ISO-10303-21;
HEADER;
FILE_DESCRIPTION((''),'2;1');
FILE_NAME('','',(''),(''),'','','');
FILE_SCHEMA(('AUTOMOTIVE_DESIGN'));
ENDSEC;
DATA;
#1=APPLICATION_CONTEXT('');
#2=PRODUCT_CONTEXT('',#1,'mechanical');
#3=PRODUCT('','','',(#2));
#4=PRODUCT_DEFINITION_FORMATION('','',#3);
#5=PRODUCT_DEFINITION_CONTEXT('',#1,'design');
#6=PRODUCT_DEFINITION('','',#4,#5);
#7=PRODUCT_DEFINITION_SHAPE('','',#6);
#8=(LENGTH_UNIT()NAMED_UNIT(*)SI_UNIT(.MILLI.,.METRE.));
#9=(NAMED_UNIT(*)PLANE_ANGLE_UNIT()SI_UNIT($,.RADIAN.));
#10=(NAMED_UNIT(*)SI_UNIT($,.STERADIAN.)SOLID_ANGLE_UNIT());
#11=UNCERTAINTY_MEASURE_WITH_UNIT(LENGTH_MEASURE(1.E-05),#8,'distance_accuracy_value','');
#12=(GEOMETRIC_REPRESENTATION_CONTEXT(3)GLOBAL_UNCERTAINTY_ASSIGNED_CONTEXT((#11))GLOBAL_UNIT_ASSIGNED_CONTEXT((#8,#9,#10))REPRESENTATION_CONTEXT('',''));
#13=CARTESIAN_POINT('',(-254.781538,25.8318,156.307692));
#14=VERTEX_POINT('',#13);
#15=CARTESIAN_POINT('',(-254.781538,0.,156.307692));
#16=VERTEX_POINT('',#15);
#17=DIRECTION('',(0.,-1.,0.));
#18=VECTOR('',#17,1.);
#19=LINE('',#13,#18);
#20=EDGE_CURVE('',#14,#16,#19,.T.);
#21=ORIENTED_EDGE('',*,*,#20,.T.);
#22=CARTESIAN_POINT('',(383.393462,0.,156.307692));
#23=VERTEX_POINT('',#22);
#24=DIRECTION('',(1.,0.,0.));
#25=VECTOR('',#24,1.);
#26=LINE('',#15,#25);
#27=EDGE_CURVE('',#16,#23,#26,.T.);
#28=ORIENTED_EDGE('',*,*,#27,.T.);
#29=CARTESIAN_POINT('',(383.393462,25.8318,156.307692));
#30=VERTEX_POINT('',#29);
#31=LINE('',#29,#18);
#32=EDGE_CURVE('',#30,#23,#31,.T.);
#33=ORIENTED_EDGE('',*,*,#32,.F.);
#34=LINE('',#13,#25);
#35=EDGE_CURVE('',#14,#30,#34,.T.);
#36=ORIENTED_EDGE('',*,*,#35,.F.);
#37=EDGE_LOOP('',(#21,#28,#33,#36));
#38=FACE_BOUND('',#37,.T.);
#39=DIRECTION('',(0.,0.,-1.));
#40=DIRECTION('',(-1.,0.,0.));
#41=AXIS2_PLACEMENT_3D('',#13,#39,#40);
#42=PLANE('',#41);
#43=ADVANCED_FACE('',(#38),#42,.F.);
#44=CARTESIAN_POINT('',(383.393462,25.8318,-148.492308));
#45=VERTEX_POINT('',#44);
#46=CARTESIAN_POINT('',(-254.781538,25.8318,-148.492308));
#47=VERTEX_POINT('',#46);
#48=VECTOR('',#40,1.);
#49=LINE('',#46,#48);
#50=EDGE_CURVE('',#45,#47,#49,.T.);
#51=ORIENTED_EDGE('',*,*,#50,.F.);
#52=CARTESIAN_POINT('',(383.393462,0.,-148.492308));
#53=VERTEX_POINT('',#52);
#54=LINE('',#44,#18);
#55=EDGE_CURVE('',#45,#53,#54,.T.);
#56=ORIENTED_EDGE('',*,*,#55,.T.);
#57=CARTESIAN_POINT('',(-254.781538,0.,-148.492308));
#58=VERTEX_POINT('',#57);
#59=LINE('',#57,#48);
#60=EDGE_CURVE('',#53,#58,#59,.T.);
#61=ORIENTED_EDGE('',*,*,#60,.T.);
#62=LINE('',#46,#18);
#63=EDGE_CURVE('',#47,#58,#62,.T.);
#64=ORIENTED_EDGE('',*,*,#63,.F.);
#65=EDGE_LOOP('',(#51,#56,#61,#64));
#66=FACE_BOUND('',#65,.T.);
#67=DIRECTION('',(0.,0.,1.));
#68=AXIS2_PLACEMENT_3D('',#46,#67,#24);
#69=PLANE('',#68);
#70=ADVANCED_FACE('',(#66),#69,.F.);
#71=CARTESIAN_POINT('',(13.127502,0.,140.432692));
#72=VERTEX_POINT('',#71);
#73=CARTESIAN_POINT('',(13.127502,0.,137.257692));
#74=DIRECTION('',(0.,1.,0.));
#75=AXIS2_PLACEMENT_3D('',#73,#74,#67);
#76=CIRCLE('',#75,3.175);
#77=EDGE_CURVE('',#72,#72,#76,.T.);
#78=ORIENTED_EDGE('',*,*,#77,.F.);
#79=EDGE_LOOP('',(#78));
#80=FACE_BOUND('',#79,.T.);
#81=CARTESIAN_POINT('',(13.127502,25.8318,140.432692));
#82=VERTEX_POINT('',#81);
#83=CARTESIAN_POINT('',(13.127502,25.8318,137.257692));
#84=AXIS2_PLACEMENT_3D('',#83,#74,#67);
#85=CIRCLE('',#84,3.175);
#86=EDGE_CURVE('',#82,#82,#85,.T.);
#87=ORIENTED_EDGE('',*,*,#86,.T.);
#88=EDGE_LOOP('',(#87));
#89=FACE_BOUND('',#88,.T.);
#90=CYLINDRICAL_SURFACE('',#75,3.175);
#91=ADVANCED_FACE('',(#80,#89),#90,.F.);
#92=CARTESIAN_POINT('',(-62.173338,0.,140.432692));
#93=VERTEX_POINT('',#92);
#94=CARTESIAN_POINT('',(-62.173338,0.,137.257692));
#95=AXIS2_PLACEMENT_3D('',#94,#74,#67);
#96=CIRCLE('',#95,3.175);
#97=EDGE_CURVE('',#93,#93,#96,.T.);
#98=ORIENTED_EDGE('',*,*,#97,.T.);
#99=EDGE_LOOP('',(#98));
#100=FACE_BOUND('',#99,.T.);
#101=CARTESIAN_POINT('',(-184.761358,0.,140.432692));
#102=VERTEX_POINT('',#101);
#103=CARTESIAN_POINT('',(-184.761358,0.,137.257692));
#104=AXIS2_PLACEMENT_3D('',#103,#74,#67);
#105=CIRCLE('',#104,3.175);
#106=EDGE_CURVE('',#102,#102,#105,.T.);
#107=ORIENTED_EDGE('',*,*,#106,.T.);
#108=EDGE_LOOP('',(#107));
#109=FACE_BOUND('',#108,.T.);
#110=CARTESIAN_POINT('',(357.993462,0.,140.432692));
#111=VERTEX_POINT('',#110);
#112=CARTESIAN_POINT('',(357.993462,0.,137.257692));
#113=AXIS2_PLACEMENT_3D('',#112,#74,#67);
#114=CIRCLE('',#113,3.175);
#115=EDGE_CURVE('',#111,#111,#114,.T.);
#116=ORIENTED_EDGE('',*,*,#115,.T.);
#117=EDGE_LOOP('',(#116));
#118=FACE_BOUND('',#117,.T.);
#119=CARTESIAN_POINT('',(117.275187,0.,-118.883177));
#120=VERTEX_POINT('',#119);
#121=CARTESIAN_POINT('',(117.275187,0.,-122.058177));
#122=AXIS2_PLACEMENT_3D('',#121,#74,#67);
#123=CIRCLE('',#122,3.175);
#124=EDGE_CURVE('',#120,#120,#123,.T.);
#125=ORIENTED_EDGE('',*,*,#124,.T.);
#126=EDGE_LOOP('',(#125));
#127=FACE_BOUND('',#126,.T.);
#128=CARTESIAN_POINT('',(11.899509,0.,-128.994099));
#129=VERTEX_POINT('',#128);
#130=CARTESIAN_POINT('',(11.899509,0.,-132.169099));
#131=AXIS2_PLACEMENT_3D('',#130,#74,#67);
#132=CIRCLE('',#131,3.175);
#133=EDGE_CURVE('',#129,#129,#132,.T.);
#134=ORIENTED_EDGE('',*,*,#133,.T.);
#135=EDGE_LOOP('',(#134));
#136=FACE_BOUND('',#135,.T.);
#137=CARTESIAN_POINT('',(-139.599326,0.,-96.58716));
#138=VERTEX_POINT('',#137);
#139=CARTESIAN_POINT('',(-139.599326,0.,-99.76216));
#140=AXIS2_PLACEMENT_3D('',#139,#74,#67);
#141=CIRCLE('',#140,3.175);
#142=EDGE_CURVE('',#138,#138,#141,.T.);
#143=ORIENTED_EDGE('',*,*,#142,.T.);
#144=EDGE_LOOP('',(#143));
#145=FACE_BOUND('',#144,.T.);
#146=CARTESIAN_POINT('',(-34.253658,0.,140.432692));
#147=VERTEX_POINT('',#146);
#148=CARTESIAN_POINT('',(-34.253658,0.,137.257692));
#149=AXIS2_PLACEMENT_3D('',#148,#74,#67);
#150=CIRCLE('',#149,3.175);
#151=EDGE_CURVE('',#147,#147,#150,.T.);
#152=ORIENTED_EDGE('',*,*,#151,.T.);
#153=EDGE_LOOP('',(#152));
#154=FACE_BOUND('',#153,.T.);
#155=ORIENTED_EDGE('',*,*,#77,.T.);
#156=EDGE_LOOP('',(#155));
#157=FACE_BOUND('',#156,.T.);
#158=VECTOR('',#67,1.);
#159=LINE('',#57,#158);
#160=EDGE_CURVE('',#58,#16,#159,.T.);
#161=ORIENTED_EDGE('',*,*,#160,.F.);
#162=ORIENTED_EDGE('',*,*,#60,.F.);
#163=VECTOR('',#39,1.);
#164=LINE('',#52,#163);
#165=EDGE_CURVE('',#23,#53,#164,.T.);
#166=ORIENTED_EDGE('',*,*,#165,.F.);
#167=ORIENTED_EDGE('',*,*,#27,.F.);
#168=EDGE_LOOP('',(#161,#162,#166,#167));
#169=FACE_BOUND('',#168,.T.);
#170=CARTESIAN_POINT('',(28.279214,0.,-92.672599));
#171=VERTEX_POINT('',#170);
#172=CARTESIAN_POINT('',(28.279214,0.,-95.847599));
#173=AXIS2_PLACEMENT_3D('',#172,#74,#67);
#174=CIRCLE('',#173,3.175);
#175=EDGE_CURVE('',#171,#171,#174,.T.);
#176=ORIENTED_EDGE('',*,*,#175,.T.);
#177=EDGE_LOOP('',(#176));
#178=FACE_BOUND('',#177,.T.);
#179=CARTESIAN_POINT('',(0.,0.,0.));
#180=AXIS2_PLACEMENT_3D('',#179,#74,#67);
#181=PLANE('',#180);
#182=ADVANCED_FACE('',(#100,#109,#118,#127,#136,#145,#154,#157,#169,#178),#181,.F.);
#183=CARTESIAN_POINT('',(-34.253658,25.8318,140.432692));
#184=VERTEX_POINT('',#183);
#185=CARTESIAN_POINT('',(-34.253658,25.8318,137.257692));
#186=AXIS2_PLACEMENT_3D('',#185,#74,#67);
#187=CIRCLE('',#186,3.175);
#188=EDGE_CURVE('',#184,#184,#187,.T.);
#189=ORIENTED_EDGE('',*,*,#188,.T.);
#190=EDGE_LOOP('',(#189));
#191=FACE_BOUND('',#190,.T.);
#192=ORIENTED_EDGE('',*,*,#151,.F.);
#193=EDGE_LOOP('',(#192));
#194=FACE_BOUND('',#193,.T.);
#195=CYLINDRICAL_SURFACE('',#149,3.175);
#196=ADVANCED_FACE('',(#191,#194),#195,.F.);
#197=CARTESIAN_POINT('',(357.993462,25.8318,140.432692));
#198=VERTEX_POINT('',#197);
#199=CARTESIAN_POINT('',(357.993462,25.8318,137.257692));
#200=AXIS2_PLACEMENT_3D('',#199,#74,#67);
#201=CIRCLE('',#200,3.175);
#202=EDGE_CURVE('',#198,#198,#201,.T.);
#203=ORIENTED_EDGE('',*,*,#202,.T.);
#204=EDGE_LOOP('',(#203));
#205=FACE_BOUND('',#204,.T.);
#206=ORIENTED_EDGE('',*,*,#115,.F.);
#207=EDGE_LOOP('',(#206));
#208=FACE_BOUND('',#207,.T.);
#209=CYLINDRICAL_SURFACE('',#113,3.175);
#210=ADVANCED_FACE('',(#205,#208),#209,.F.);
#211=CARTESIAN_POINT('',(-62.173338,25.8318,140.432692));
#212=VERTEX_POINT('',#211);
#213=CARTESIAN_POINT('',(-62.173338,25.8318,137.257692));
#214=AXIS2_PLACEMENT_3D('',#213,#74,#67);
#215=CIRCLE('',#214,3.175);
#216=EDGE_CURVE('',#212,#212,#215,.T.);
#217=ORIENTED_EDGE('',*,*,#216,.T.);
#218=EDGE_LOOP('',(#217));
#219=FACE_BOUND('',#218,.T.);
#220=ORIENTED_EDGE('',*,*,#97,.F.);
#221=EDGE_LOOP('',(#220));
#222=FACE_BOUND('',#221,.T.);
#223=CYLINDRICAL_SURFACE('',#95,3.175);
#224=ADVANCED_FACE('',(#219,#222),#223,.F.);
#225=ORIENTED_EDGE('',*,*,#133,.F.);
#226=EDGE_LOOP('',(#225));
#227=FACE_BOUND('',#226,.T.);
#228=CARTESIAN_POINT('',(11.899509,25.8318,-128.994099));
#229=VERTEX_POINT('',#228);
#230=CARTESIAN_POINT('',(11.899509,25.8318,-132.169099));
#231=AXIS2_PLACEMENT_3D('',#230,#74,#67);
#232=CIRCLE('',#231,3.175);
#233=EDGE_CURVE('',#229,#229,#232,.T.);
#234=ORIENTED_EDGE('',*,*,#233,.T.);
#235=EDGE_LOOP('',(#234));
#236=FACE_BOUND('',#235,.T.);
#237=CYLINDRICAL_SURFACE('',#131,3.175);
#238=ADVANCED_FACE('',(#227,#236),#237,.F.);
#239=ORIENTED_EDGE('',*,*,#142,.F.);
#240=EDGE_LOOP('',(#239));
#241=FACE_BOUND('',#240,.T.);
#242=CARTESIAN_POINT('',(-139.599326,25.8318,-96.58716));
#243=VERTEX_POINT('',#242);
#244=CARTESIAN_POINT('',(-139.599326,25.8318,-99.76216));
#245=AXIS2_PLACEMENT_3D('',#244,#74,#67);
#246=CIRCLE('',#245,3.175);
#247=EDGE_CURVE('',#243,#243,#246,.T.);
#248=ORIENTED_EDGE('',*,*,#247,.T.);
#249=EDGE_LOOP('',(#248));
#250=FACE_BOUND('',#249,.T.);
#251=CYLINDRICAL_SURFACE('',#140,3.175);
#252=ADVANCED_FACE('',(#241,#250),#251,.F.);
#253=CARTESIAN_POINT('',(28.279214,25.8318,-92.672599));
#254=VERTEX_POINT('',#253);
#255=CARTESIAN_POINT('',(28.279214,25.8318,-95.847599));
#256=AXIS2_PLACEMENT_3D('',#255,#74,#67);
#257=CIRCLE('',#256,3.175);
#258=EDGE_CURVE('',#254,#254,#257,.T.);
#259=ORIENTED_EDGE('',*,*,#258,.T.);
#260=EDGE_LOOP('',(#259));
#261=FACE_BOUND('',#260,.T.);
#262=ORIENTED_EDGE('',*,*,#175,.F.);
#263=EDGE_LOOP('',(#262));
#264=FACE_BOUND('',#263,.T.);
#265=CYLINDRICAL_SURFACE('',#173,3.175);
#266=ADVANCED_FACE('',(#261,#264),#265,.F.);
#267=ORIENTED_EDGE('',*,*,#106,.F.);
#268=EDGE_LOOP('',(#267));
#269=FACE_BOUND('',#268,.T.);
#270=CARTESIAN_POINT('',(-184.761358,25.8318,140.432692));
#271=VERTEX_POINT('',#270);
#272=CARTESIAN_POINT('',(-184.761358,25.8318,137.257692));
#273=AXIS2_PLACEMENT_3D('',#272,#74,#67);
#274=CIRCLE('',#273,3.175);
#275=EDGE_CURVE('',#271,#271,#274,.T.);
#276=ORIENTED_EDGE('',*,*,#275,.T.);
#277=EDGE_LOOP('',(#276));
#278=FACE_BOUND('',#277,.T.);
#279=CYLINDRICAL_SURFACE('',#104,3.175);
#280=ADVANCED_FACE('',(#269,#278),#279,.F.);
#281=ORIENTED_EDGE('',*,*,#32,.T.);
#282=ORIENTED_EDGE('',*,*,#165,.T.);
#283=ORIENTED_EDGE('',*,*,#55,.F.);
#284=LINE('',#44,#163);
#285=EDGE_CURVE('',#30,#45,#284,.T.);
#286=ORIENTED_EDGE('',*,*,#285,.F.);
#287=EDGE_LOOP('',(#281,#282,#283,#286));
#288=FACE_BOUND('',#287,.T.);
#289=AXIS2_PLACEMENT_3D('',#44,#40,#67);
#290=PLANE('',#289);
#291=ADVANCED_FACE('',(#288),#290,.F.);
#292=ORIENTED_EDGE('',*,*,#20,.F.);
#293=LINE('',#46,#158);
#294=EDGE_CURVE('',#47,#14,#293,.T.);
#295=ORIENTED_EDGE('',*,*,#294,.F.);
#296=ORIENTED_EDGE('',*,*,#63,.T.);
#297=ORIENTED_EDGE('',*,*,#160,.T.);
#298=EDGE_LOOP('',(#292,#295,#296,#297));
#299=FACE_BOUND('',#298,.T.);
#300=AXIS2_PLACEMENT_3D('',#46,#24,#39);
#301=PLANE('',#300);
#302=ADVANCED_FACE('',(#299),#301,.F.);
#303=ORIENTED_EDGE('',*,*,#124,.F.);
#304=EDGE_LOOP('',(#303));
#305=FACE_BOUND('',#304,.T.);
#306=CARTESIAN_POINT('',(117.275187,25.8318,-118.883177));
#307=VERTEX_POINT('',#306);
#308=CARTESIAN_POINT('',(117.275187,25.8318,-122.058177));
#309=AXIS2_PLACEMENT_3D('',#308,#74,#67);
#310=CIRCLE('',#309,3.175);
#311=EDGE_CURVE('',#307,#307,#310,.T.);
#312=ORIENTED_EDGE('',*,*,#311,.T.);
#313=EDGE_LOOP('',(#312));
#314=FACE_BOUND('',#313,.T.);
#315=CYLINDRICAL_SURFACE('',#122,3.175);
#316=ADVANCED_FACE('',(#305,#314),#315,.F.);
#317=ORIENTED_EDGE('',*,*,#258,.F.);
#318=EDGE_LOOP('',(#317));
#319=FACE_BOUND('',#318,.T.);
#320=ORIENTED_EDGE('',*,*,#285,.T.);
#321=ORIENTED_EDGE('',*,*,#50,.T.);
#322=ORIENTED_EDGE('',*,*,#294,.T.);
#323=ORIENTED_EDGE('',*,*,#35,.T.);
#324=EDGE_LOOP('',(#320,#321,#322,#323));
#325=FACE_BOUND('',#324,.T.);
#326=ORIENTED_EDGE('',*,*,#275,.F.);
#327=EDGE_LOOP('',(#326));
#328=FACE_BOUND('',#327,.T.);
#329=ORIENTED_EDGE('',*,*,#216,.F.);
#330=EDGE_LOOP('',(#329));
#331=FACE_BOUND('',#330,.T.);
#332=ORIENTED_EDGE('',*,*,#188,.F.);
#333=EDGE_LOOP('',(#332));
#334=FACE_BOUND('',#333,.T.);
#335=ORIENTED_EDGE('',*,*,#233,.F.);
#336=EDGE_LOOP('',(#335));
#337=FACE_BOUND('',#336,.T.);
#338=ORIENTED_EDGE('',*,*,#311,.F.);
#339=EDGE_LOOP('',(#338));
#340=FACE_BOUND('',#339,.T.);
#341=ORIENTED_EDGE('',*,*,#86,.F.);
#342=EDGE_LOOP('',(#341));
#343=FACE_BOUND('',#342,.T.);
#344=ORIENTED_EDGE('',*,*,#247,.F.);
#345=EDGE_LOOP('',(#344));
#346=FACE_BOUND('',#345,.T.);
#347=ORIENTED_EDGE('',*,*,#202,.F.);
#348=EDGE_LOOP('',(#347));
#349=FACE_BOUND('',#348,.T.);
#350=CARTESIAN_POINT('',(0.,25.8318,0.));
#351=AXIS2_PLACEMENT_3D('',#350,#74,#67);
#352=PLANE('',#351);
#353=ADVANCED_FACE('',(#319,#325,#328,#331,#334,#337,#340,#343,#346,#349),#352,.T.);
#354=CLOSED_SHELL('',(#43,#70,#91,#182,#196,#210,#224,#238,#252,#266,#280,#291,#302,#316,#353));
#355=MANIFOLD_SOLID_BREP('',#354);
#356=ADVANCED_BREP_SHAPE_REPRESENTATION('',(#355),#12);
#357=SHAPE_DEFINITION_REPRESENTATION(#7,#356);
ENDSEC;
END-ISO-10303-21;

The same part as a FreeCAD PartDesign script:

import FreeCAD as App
import Part
import Sketcher

V = App.Vector
Q = App.Units.Quantity


def add_polygon(sketch, points):
    """Adds a closed chain of lines whose ends are joined by coincident constraints."""
    first, n = sketch.GeometryCount, len(points)
    for a, b in zip(points, points[1:] + points[:1]):
        sketch.addGeometry(Part.LineSegment(App.Vector(*a, 0), App.Vector(*b, 0)), False)
    for i in range(n):
        sketch.addConstraint(Sketcher.Constraint("Coincident", first + i, 2, first + (i + 1) % n, 1))

doc = App.newDocument("Part")
body = doc.addObject("PartDesign::Body", "Body")

sketch1 = body.newObject("Sketcher::SketchObject", "Sketch")
sketch1.AttachmentSupport = (doc.getObject("XZ_Plane"), [""])
sketch1.MapMode = "FlatFace"
add_polygon(sketch1, [(-255, -148), (-255, 156), (383, 156), (383, -148)])
sketch1.addConstraint([
    Sketcher.Constraint("Vertical", 0),
    Sketcher.Constraint("Horizontal", 1),
    Sketcher.Constraint("Vertical", 2),
    Sketcher.Constraint("Horizontal", 3),
    Sketcher.Constraint("DistanceY", 0, 1, 0, 2, Q("12 in")),
    Sketcher.Constraint("DistanceX", 1, 1, 1, 2, Q("25.125 in")),
    Sketcher.Constraint("DistanceX", 0, 2, -1, 1, Q("254.781538 mm")),
    Sketcher.Constraint("DistanceY", -1, 1, 0, 2, Q("156.307692 mm")),
])
pad1 = body.newObject("PartDesign::Pad", "Pad")
pad1.Profile = sketch1
pad1.Length = Q("1.017 in")
pad1.Reversed = True

sketch2 = body.newObject("Sketcher::SketchObject", "Sketch001")
sketch2.AttachmentSupport = (doc.getObject("XZ_Plane"), [""])
sketch2.MapMode = "FlatFace"
sketch2.AttachmentOffset = App.Placement(V(0, 0, -1.017 * 25.4), App.Rotation())
sketch2.addGeometry([
    Part.Circle(V(358, 137.3, 0), V(0, 0, 1), 3.2),
    Part.Circle(V(-62.2, 137.3, 0), V(0, 0, 1), 3.2),
    Part.Circle(V(11.9, -132.2, 0), V(0, 0, 1), 3.2),
], False)
sketch2.addConstraint([
    Sketcher.Constraint("Equal", 0, 1),
    Sketcher.Constraint("Equal", 1, 2),
    Sketcher.Constraint("Horizontal", 0, 3, 1, 3),
    Sketcher.Constraint("Diameter", 0, Q("0.25 in")),
    Sketcher.Constraint("DistanceX", 1, 3, 0, 3, Q("16.542 in")),
    Sketcher.Constraint("DistanceY", 2, 3, -1, 1, Q("132.169099 mm")),
    Sketcher.Constraint("DistanceX", -1, 1, 0, 3, Q("357.993462 mm")),
    Sketcher.Constraint("DistanceX", -1, 1, 2, 3, Q("11.899509 mm")),
    Sketcher.Constraint("DistanceY", 2, 3, 1, 3, Q("269.426791 mm")),
])
pocket1 = body.newObject("PartDesign::Pocket", "Pocket")
pocket1.Profile = sketch2
pocket1.Type = "ThroughAll"
pocket1.Reversed = True

sketch3 = body.newObject("Sketcher::SketchObject", "Sketch002")
sketch3.AttachmentSupport = (doc.getObject("XZ_Plane"), [""])
sketch3.MapMode = "FlatFace"
sketch3.AttachmentOffset = App.Placement(V(0, 0, -1.017 * 25.4), App.Rotation())
sketch3.addGeometry([
    Part.Circle(V(13.1, 137.3, 0), V(0, 0, 1), 3.2),
    Part.Circle(V(117.3, -122.1, 0), V(0, 0, 1), 3.2),
], False)
sketch3.addConstraint([
    Sketcher.Constraint("Equal", 0, 1),
    Sketcher.Constraint("Diameter", 0, Q("0.25 in")),
    Sketcher.Constraint("DistanceX", -1, 1, 0, 3, Q("13.127502 mm")),
    Sketcher.Constraint("DistanceY", 1, 3, 0, 3, Q("259.315869 mm")),
    Sketcher.Constraint("DistanceY", -1, 1, 0, 3, Q("137.257692 mm")),
    Sketcher.Constraint("DistanceX", -1, 1, 1, 3, Q("117.275187 mm")),
])
pocket2 = body.newObject("PartDesign::Pocket", "Pocket001")
pocket2.Profile = sketch3
pocket2.Type = "ThroughAll"
pocket2.Reversed = True

sketch4 = body.newObject("Sketcher::SketchObject", "Sketch003")
sketch4.AttachmentSupport = (doc.getObject("XZ_Plane"), [""])
sketch4.MapMode = "FlatFace"
sketch4.AttachmentOffset = App.Placement(V(0, 0, -1.017 * 25.4), App.Rotation())
sketch4.addGeometry([
    Part.Circle(V(-34.3, 137.3, 0), V(0, 0, 1), 3.2),
    Part.Circle(V(28.3, -95.8, 0), V(0, 0, 1), 3.2),
], False)
sketch4.addConstraint([
    Sketcher.Constraint("Equal", 0, 1),
    Sketcher.Constraint("Diameter", 0, Q("0.25 in")),
    Sketcher.Constraint("DistanceY", 1, 3, -1, 1, Q("95.847599 mm")),
    Sketcher.Constraint("DistanceX", 0, 3, -1, 1, Q("34.253658 mm")),
    Sketcher.Constraint("DistanceY", 1, 3, 0, 3, Q("233.105291 mm")),
    Sketcher.Constraint("DistanceX", -1, 1, 1, 3, Q("28.279214 mm")),
])
pocket3 = body.newObject("PartDesign::Pocket", "Pocket002")
pocket3.Profile = sketch4
pocket3.Type = "ThroughAll"
pocket3.Reversed = True

sketch5 = body.newObject("Sketcher::SketchObject", "Sketch004")
sketch5.AttachmentSupport = (doc.getObject("XZ_Plane"), [""])
sketch5.MapMode = "FlatFace"
sketch5.AttachmentOffset = App.Placement(V(0, 0, -1.017 * 25.4), App.Rotation())
sketch5.addGeometry([
    Part.Circle(V(-184.8, 137.3, 0), V(0, 0, 1), 3.2),
    Part.Circle(V(-139.6, -99.8, 0), V(0, 0, 1), 3.2),
], False)
sketch5.addConstraint([
    Sketcher.Constraint("Equal", 0, 1),
    Sketcher.Constraint("Diameter", 0, Q("0.25 in")),
    Sketcher.Constraint("DistanceX", 0, 3, -1, 1, Q("184.761358 mm")),
    Sketcher.Constraint("DistanceY", 1, 3, -1, 1, Q("99.76216 mm")),
    Sketcher.Constraint("DistanceX", 0, 3, 1, 3, Q("45.162032 mm")),
    Sketcher.Constraint("DistanceY", 1, 3, 0, 3, Q("237.019852 mm")),
])
pocket4 = body.newObject("PartDesign::Pocket", "Pocket003")
pocket4.Profile = sketch5
pocket4.Type = "ThroughAll"
pocket4.Reversed = True

doc.recompute()
